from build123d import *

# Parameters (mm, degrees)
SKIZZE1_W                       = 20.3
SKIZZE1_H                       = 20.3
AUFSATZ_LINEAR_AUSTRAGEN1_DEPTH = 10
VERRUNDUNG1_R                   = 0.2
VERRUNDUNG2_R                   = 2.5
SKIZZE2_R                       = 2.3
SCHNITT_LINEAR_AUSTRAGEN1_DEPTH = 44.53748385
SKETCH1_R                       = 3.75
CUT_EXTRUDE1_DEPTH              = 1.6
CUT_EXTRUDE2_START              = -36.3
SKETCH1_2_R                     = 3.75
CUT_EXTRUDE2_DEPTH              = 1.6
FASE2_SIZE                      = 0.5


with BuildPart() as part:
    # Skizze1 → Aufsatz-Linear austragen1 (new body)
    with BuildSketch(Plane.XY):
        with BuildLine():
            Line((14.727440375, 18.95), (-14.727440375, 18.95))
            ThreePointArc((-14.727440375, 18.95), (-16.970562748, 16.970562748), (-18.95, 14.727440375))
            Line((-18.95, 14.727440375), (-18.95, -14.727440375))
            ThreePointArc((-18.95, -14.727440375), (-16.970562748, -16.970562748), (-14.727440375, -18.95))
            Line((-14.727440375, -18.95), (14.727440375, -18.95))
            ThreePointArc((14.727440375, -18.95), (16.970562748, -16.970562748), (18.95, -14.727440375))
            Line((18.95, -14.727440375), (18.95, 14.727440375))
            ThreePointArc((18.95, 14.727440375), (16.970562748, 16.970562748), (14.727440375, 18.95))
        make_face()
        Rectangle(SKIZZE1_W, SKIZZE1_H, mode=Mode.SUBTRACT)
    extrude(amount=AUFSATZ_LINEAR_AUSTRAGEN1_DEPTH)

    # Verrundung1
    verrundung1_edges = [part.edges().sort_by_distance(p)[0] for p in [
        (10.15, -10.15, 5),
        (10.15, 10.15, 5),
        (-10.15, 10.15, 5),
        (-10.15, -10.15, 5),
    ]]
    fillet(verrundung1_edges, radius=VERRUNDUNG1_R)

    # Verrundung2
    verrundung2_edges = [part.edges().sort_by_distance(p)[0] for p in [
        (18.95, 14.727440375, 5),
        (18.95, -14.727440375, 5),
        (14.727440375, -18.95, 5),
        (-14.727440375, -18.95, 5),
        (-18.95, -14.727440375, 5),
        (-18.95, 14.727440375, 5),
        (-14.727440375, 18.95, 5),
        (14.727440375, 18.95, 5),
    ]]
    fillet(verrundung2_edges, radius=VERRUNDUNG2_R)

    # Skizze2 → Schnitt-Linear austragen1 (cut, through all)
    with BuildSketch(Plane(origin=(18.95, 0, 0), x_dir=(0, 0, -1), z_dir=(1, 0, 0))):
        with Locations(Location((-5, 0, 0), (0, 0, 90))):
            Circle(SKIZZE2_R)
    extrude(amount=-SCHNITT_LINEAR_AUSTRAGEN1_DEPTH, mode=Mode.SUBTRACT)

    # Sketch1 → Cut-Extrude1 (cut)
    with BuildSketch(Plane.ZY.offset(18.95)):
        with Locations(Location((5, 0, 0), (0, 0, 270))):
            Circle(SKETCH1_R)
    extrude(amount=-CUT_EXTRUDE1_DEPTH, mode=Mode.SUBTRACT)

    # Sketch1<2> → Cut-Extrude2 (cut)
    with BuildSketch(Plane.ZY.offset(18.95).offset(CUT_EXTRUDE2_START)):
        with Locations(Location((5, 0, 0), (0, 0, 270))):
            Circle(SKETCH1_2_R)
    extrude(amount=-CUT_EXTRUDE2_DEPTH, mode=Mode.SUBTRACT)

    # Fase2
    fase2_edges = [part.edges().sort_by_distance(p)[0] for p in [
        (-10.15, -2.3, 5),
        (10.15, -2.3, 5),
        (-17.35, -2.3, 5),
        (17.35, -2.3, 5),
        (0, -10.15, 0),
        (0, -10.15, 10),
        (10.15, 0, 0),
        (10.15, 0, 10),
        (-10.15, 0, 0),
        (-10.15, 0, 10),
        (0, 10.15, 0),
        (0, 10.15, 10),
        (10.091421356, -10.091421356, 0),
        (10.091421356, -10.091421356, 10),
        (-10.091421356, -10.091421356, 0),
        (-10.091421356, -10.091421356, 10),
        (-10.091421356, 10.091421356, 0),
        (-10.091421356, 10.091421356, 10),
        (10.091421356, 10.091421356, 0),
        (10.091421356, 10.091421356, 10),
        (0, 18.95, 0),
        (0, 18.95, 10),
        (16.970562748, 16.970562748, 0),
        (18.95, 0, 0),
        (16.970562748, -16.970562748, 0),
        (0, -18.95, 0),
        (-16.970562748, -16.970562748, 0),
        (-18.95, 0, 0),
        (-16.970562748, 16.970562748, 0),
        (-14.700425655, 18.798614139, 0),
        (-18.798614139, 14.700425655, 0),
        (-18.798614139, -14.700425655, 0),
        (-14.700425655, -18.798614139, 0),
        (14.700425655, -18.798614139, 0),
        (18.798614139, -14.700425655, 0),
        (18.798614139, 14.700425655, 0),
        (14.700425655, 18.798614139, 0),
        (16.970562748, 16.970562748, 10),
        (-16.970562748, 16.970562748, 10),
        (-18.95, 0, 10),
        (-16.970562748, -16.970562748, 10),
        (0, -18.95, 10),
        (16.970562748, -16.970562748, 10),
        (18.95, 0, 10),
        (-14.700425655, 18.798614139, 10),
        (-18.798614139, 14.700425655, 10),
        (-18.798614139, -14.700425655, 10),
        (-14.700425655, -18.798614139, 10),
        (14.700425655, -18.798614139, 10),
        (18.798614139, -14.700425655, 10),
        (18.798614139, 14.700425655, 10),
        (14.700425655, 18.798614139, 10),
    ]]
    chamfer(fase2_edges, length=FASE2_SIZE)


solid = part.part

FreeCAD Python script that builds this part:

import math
import FreeCAD as App
import Part
import Sketcher


def edges_at(feature, points):
    """Names of the edges that pass closest to the given points."""
    edges = feature.Shape.Edges
    near = lambda p: min(range(len(edges)), key=lambda i: edges[i].distToShape(Part.Vertex(*p))[0])
    return sorted({f"Edge{near(p) + 1}" for p in points})


def add_polygon(sketch, points):
    """Adds a closed chain of lines whose ends are joined by coincident constraints."""
    first, n = sketch.GeometryCount, len(points)
    for a, b in zip(points, points[1:] + points[:1]):
        sketch.addGeometry(Part.LineSegment(App.Vector(*a, 0), App.Vector(*b, 0)), False)
    for i in range(n):
        sketch.addConstraint(Sketcher.Constraint("Coincident", first + i, 2, first + (i + 1) % n, 1))

doc = App.newDocument("Part")
body = doc.addObject("PartDesign::Body", "Body")

# Sketch on XY plane
sketch1 = body.newObject("Sketcher::SketchObject", "Sketch")
sketch1.AttachmentSupport = (doc.getObject("XY_Plane"), [""])
sketch1.MapMode = "FlatFace"
sketch1.addGeometry(Part.LineSegment(App.Vector(15, 19, 0), App.Vector(-15, 19, 0)), False)  # 0
sketch1.addGeometry(Part.ArcOfCircle(Part.Circle(App.Vector(0, 0, 0), App.Vector(0, 0, 1), 24), math.radians(127.85), math.radians(142.15)), False)  # 1
sketch1.addGeometry(Part.LineSegment(App.Vector(-19, 15, 0), App.Vector(-19, -15, 0)), False)  # 2
sketch1.addGeometry(Part.ArcOfCircle(Part.Circle(App.Vector(0, 0, 0), App.Vector(0, 0, 1), 24), math.radians(-142.15), math.radians(-127.85)), False)  # 3
sketch1.addGeometry(Part.LineSegment(App.Vector(-15, -19, 0), App.Vector(15, -19, 0)), False)  # 4
sketch1.addGeometry(Part.ArcOfCircle(Part.Circle(App.Vector(0, 0, 0), App.Vector(0, 0, 1), 24), math.radians(-52.15), math.radians(-37.85)), False)  # 5
sketch1.addGeometry(Part.LineSegment(App.Vector(19, -15, 0), App.Vector(19, 15, 0)), False)  # 6
sketch1.addGeometry(Part.ArcOfCircle(Part.Circle(App.Vector(0, 0, 0), App.Vector(0, 0, 1), 24), math.radians(37.85), math.radians(52.15)), False)  # 7
add_polygon(sketch1, [(10, -10), (-10, -10), (-10, 10), (10, 10)])  # lines 8-11
sketch1.addConstraint([
    Sketcher.Constraint("Coincident", 0, 2, 1, 1),
    Sketcher.Constraint("Coincident", 1, 2, 2, 1),
    Sketcher.Constraint("Coincident", 2, 2, 3, 1),
    Sketcher.Constraint("Coincident", 3, 2, 4, 1),
    Sketcher.Constraint("Coincident", 4, 2, 5, 1),
    Sketcher.Constraint("Coincident", 5, 2, 6, 1),
    Sketcher.Constraint("Coincident", 6, 2, 7, 1),
    Sketcher.Constraint("Coincident", 7, 2, 0, 1),
    Sketcher.Constraint("Horizontal", 0),
    Sketcher.Constraint("Vertical", 2),
    Sketcher.Constraint("Horizontal", 4),
    Sketcher.Constraint("Vertical", 6),
    Sketcher.Constraint("Horizontal", 8),
    Sketcher.Constraint("Vertical", 9),
    Sketcher.Constraint("Horizontal", 10),
    Sketcher.Constraint("Vertical", 11),
    Sketcher.Constraint("Coincident", 1, 3, -1, 1),
    Sketcher.Constraint("Coincident", 3, 3, -1, 1),
    Sketcher.Constraint("Coincident", 5, 3, -1, 1),
    Sketcher.Constraint("Coincident", 7, 3, -1, 1),
    Sketcher.Constraint("Equal", 1, 3),
    Sketcher.Constraint("Equal", 3, 5),
    Sketcher.Constraint("Equal", 5, 7),
    Sketcher.Constraint("Symmetric", 8, 2, 10, 2, -1, 1),
    Sketcher.Constraint("Horizontal", 2, 2, 5, 2),
    Sketcher.Constraint("Vertical", 0, 2, 3, 2),
    Sketcher.Constraint("Equal", 4, 2),
    Sketcher.Constraint("Equal", 10, 9),
    Sketcher.Constraint("Radius", 1, 24.0),
    Sketcher.Constraint("DistanceX", 8, 2, 8, 1, 20.3),
    Sketcher.Constraint("DistanceY", 3, 2, 8, 2, 8.8),
])
pad1 = body.newObject("PartDesign::Pad", "Pad")
pad1.Profile = sketch1
pad1.Length = 10
doc.recompute()

fillet = body.newObject("PartDesign::Fillet", "Fillet")
fillet.Base = (pad1, edges_at(pad1, [
    (10.15, -10.15, 5),
    (10.15, 10.15, 5),
    (-10.15, 10.15, 5),
    (-10.15, -10.15, 5),
]))
fillet.Radius = 0.2
doc.recompute()

fillet2 = body.newObject("PartDesign::Fillet", "Fillet001")
fillet2.Base = (fillet, edges_at(fillet, [
    (18.95, 14.727, 5),
    (18.95, -14.727, 5),
    (14.727, -18.95, 5),
    (-14.727, -18.95, 5),
    (-18.95, -14.727, 5),
    (-18.95, 14.727, 5),
    (-14.727, 18.95, 5),
    (14.727, 18.95, 5),
]))
fillet2.Radius = 2.5

# Sketch on YZ plane
sketch2 = body.newObject("Sketcher::SketchObject", "Sketch001")
sketch2.AttachmentSupport = (doc.getObject("YZ_Plane"), [""])
sketch2.MapMode = "FlatFace"
sketch2.AttachmentOffset = App.Placement(App.Vector(0, 0, 18.95), App.Rotation())
sketch2.addGeometry(Part.Circle(App.Vector(0, 5, 0), App.Vector(0, 0, 1), 2.3), False)
sketch2.addConstraint([
    Sketcher.Constraint("PointOnObject", 0, 3, -2),
    Sketcher.Constraint("Diameter", 0, 4.6),
    Sketcher.Constraint("DistanceY", -1, 1, 0, 3, 5.0),
])
pocket1 = body.newObject("PartDesign::Pocket", "Pocket")
pocket1.Profile = sketch2
pocket1.Type = "ThroughAll"

# Sketch on YZ plane
sketch3 = body.newObject("Sketcher::SketchObject", "Sketch002")
sketch3.AttachmentSupport = (doc.getObject("YZ_Plane"), [""])
sketch3.MapMode = "FlatFace"
sketch3.AttachmentOffset = App.Placement(App.Vector(0, 0, -18.95), App.Rotation())
sketch3.addGeometry(Part.Circle(App.Vector(0, 5, 0), App.Vector(0, 0, 1), 3.8), False)
sketch3.addConstraint([
    Sketcher.Constraint("PointOnObject", 0, 3, -2),
    Sketcher.Constraint("Diameter", 0, 7.5),
    Sketcher.Constraint("DistanceY", -1, 1, 0, 3, 5.0),
])
pocket2 = body.newObject("PartDesign::Pocket", "Pocket001")
pocket2.Profile = sketch3
pocket2.Length = 1.6
pocket2.Reversed = True

# Sketch on YZ plane
sketch4 = body.newObject("Sketcher::SketchObject", "Sketch003")
sketch4.AttachmentSupport = (doc.getObject("YZ_Plane"), [""])
sketch4.MapMode = "FlatFace"
sketch4.AttachmentOffset = App.Placement(App.Vector(0, 0, 17.35), App.Rotation())
sketch4.addGeometry(Part.Circle(App.Vector(0, 5, 0), App.Vector(0, 0, 1), 3.8), False)
sketch4.addConstraint([
    Sketcher.Constraint("PointOnObject", 0, 3, -2),
    Sketcher.Constraint("Diameter", 0, 7.5),
    Sketcher.Constraint("DistanceY", -1, 1, 0, 3, 5.0),
])
pocket3 = body.newObject("PartDesign::Pocket", "Pocket002")
pocket3.Profile = sketch4
pocket3.Length = 1.6
pocket3.Reversed = True
doc.recompute()

chamfer = body.newObject("PartDesign::Chamfer", "Chamfer")
chamfer.Base = (pocket3, edges_at(pocket3, [
    (-10.15, -2.3, 5),
    (10.15, -2.3, 5),
    (-17.35, -2.3, 5),
    (17.35, -2.3, 5),
    (0, -10.15, 0),
    (0, -10.15, 10),
    (10.15, 0, 0),
    (10.15, 0, 10),
    (-10.15, 0, 0),
    (-10.15, 0, 10),
    (0, 10.15, 0),
    (0, 10.15, 10),
    (10.091, -10.091, 0),
    (10.091, -10.091, 10),
    (-10.091, -10.091, 0),
    (-10.091, -10.091, 10),
    (-10.091, 10.091, 0),
    (-10.091, 10.091, 10),
    (10.091, 10.091, 0),
    (10.091, 10.091, 10),
    (0, 18.95, 0),
    (0, 18.95, 10),
    (16.971, 16.971, 0),
    (18.95, 0, 0),
    (16.971, -16.971, 0),
    (0, -18.95, 0),
    (-16.971, -16.971, 0),
    (-18.95, 0, 0),
    (-16.971, 16.971, 0),
    (-14.7, 18.799, 0),
    (-18.799, 14.7, 0),
    (-18.799, -14.7, 0),
    (-14.7, -18.799, 0),
    (14.7, -18.799, 0),
    (18.799, -14.7, 0),
    (18.799, 14.7, 0),
    (14.7, 18.799, 0),
    (16.971, 16.971, 10),
    (-16.971, 16.971, 10),
    (-18.95, 0, 10),
    (-16.971, -16.971, 10),
    (0, -18.95, 10),
    (16.971, -16.971, 10),
    (18.95, 0, 10),
    (-14.7, 18.799, 10),
    (-18.799, 14.7, 10),
    (-18.799, -14.7, 10),
    (-14.7, -18.799, 10),
    (14.7, -18.799, 10),
    (18.799, -14.7, 10),
    (18.799, 14.7, 10),
    (14.7, 18.799, 10),
]))
chamfer.Size = 0.5

doc.recompute()
